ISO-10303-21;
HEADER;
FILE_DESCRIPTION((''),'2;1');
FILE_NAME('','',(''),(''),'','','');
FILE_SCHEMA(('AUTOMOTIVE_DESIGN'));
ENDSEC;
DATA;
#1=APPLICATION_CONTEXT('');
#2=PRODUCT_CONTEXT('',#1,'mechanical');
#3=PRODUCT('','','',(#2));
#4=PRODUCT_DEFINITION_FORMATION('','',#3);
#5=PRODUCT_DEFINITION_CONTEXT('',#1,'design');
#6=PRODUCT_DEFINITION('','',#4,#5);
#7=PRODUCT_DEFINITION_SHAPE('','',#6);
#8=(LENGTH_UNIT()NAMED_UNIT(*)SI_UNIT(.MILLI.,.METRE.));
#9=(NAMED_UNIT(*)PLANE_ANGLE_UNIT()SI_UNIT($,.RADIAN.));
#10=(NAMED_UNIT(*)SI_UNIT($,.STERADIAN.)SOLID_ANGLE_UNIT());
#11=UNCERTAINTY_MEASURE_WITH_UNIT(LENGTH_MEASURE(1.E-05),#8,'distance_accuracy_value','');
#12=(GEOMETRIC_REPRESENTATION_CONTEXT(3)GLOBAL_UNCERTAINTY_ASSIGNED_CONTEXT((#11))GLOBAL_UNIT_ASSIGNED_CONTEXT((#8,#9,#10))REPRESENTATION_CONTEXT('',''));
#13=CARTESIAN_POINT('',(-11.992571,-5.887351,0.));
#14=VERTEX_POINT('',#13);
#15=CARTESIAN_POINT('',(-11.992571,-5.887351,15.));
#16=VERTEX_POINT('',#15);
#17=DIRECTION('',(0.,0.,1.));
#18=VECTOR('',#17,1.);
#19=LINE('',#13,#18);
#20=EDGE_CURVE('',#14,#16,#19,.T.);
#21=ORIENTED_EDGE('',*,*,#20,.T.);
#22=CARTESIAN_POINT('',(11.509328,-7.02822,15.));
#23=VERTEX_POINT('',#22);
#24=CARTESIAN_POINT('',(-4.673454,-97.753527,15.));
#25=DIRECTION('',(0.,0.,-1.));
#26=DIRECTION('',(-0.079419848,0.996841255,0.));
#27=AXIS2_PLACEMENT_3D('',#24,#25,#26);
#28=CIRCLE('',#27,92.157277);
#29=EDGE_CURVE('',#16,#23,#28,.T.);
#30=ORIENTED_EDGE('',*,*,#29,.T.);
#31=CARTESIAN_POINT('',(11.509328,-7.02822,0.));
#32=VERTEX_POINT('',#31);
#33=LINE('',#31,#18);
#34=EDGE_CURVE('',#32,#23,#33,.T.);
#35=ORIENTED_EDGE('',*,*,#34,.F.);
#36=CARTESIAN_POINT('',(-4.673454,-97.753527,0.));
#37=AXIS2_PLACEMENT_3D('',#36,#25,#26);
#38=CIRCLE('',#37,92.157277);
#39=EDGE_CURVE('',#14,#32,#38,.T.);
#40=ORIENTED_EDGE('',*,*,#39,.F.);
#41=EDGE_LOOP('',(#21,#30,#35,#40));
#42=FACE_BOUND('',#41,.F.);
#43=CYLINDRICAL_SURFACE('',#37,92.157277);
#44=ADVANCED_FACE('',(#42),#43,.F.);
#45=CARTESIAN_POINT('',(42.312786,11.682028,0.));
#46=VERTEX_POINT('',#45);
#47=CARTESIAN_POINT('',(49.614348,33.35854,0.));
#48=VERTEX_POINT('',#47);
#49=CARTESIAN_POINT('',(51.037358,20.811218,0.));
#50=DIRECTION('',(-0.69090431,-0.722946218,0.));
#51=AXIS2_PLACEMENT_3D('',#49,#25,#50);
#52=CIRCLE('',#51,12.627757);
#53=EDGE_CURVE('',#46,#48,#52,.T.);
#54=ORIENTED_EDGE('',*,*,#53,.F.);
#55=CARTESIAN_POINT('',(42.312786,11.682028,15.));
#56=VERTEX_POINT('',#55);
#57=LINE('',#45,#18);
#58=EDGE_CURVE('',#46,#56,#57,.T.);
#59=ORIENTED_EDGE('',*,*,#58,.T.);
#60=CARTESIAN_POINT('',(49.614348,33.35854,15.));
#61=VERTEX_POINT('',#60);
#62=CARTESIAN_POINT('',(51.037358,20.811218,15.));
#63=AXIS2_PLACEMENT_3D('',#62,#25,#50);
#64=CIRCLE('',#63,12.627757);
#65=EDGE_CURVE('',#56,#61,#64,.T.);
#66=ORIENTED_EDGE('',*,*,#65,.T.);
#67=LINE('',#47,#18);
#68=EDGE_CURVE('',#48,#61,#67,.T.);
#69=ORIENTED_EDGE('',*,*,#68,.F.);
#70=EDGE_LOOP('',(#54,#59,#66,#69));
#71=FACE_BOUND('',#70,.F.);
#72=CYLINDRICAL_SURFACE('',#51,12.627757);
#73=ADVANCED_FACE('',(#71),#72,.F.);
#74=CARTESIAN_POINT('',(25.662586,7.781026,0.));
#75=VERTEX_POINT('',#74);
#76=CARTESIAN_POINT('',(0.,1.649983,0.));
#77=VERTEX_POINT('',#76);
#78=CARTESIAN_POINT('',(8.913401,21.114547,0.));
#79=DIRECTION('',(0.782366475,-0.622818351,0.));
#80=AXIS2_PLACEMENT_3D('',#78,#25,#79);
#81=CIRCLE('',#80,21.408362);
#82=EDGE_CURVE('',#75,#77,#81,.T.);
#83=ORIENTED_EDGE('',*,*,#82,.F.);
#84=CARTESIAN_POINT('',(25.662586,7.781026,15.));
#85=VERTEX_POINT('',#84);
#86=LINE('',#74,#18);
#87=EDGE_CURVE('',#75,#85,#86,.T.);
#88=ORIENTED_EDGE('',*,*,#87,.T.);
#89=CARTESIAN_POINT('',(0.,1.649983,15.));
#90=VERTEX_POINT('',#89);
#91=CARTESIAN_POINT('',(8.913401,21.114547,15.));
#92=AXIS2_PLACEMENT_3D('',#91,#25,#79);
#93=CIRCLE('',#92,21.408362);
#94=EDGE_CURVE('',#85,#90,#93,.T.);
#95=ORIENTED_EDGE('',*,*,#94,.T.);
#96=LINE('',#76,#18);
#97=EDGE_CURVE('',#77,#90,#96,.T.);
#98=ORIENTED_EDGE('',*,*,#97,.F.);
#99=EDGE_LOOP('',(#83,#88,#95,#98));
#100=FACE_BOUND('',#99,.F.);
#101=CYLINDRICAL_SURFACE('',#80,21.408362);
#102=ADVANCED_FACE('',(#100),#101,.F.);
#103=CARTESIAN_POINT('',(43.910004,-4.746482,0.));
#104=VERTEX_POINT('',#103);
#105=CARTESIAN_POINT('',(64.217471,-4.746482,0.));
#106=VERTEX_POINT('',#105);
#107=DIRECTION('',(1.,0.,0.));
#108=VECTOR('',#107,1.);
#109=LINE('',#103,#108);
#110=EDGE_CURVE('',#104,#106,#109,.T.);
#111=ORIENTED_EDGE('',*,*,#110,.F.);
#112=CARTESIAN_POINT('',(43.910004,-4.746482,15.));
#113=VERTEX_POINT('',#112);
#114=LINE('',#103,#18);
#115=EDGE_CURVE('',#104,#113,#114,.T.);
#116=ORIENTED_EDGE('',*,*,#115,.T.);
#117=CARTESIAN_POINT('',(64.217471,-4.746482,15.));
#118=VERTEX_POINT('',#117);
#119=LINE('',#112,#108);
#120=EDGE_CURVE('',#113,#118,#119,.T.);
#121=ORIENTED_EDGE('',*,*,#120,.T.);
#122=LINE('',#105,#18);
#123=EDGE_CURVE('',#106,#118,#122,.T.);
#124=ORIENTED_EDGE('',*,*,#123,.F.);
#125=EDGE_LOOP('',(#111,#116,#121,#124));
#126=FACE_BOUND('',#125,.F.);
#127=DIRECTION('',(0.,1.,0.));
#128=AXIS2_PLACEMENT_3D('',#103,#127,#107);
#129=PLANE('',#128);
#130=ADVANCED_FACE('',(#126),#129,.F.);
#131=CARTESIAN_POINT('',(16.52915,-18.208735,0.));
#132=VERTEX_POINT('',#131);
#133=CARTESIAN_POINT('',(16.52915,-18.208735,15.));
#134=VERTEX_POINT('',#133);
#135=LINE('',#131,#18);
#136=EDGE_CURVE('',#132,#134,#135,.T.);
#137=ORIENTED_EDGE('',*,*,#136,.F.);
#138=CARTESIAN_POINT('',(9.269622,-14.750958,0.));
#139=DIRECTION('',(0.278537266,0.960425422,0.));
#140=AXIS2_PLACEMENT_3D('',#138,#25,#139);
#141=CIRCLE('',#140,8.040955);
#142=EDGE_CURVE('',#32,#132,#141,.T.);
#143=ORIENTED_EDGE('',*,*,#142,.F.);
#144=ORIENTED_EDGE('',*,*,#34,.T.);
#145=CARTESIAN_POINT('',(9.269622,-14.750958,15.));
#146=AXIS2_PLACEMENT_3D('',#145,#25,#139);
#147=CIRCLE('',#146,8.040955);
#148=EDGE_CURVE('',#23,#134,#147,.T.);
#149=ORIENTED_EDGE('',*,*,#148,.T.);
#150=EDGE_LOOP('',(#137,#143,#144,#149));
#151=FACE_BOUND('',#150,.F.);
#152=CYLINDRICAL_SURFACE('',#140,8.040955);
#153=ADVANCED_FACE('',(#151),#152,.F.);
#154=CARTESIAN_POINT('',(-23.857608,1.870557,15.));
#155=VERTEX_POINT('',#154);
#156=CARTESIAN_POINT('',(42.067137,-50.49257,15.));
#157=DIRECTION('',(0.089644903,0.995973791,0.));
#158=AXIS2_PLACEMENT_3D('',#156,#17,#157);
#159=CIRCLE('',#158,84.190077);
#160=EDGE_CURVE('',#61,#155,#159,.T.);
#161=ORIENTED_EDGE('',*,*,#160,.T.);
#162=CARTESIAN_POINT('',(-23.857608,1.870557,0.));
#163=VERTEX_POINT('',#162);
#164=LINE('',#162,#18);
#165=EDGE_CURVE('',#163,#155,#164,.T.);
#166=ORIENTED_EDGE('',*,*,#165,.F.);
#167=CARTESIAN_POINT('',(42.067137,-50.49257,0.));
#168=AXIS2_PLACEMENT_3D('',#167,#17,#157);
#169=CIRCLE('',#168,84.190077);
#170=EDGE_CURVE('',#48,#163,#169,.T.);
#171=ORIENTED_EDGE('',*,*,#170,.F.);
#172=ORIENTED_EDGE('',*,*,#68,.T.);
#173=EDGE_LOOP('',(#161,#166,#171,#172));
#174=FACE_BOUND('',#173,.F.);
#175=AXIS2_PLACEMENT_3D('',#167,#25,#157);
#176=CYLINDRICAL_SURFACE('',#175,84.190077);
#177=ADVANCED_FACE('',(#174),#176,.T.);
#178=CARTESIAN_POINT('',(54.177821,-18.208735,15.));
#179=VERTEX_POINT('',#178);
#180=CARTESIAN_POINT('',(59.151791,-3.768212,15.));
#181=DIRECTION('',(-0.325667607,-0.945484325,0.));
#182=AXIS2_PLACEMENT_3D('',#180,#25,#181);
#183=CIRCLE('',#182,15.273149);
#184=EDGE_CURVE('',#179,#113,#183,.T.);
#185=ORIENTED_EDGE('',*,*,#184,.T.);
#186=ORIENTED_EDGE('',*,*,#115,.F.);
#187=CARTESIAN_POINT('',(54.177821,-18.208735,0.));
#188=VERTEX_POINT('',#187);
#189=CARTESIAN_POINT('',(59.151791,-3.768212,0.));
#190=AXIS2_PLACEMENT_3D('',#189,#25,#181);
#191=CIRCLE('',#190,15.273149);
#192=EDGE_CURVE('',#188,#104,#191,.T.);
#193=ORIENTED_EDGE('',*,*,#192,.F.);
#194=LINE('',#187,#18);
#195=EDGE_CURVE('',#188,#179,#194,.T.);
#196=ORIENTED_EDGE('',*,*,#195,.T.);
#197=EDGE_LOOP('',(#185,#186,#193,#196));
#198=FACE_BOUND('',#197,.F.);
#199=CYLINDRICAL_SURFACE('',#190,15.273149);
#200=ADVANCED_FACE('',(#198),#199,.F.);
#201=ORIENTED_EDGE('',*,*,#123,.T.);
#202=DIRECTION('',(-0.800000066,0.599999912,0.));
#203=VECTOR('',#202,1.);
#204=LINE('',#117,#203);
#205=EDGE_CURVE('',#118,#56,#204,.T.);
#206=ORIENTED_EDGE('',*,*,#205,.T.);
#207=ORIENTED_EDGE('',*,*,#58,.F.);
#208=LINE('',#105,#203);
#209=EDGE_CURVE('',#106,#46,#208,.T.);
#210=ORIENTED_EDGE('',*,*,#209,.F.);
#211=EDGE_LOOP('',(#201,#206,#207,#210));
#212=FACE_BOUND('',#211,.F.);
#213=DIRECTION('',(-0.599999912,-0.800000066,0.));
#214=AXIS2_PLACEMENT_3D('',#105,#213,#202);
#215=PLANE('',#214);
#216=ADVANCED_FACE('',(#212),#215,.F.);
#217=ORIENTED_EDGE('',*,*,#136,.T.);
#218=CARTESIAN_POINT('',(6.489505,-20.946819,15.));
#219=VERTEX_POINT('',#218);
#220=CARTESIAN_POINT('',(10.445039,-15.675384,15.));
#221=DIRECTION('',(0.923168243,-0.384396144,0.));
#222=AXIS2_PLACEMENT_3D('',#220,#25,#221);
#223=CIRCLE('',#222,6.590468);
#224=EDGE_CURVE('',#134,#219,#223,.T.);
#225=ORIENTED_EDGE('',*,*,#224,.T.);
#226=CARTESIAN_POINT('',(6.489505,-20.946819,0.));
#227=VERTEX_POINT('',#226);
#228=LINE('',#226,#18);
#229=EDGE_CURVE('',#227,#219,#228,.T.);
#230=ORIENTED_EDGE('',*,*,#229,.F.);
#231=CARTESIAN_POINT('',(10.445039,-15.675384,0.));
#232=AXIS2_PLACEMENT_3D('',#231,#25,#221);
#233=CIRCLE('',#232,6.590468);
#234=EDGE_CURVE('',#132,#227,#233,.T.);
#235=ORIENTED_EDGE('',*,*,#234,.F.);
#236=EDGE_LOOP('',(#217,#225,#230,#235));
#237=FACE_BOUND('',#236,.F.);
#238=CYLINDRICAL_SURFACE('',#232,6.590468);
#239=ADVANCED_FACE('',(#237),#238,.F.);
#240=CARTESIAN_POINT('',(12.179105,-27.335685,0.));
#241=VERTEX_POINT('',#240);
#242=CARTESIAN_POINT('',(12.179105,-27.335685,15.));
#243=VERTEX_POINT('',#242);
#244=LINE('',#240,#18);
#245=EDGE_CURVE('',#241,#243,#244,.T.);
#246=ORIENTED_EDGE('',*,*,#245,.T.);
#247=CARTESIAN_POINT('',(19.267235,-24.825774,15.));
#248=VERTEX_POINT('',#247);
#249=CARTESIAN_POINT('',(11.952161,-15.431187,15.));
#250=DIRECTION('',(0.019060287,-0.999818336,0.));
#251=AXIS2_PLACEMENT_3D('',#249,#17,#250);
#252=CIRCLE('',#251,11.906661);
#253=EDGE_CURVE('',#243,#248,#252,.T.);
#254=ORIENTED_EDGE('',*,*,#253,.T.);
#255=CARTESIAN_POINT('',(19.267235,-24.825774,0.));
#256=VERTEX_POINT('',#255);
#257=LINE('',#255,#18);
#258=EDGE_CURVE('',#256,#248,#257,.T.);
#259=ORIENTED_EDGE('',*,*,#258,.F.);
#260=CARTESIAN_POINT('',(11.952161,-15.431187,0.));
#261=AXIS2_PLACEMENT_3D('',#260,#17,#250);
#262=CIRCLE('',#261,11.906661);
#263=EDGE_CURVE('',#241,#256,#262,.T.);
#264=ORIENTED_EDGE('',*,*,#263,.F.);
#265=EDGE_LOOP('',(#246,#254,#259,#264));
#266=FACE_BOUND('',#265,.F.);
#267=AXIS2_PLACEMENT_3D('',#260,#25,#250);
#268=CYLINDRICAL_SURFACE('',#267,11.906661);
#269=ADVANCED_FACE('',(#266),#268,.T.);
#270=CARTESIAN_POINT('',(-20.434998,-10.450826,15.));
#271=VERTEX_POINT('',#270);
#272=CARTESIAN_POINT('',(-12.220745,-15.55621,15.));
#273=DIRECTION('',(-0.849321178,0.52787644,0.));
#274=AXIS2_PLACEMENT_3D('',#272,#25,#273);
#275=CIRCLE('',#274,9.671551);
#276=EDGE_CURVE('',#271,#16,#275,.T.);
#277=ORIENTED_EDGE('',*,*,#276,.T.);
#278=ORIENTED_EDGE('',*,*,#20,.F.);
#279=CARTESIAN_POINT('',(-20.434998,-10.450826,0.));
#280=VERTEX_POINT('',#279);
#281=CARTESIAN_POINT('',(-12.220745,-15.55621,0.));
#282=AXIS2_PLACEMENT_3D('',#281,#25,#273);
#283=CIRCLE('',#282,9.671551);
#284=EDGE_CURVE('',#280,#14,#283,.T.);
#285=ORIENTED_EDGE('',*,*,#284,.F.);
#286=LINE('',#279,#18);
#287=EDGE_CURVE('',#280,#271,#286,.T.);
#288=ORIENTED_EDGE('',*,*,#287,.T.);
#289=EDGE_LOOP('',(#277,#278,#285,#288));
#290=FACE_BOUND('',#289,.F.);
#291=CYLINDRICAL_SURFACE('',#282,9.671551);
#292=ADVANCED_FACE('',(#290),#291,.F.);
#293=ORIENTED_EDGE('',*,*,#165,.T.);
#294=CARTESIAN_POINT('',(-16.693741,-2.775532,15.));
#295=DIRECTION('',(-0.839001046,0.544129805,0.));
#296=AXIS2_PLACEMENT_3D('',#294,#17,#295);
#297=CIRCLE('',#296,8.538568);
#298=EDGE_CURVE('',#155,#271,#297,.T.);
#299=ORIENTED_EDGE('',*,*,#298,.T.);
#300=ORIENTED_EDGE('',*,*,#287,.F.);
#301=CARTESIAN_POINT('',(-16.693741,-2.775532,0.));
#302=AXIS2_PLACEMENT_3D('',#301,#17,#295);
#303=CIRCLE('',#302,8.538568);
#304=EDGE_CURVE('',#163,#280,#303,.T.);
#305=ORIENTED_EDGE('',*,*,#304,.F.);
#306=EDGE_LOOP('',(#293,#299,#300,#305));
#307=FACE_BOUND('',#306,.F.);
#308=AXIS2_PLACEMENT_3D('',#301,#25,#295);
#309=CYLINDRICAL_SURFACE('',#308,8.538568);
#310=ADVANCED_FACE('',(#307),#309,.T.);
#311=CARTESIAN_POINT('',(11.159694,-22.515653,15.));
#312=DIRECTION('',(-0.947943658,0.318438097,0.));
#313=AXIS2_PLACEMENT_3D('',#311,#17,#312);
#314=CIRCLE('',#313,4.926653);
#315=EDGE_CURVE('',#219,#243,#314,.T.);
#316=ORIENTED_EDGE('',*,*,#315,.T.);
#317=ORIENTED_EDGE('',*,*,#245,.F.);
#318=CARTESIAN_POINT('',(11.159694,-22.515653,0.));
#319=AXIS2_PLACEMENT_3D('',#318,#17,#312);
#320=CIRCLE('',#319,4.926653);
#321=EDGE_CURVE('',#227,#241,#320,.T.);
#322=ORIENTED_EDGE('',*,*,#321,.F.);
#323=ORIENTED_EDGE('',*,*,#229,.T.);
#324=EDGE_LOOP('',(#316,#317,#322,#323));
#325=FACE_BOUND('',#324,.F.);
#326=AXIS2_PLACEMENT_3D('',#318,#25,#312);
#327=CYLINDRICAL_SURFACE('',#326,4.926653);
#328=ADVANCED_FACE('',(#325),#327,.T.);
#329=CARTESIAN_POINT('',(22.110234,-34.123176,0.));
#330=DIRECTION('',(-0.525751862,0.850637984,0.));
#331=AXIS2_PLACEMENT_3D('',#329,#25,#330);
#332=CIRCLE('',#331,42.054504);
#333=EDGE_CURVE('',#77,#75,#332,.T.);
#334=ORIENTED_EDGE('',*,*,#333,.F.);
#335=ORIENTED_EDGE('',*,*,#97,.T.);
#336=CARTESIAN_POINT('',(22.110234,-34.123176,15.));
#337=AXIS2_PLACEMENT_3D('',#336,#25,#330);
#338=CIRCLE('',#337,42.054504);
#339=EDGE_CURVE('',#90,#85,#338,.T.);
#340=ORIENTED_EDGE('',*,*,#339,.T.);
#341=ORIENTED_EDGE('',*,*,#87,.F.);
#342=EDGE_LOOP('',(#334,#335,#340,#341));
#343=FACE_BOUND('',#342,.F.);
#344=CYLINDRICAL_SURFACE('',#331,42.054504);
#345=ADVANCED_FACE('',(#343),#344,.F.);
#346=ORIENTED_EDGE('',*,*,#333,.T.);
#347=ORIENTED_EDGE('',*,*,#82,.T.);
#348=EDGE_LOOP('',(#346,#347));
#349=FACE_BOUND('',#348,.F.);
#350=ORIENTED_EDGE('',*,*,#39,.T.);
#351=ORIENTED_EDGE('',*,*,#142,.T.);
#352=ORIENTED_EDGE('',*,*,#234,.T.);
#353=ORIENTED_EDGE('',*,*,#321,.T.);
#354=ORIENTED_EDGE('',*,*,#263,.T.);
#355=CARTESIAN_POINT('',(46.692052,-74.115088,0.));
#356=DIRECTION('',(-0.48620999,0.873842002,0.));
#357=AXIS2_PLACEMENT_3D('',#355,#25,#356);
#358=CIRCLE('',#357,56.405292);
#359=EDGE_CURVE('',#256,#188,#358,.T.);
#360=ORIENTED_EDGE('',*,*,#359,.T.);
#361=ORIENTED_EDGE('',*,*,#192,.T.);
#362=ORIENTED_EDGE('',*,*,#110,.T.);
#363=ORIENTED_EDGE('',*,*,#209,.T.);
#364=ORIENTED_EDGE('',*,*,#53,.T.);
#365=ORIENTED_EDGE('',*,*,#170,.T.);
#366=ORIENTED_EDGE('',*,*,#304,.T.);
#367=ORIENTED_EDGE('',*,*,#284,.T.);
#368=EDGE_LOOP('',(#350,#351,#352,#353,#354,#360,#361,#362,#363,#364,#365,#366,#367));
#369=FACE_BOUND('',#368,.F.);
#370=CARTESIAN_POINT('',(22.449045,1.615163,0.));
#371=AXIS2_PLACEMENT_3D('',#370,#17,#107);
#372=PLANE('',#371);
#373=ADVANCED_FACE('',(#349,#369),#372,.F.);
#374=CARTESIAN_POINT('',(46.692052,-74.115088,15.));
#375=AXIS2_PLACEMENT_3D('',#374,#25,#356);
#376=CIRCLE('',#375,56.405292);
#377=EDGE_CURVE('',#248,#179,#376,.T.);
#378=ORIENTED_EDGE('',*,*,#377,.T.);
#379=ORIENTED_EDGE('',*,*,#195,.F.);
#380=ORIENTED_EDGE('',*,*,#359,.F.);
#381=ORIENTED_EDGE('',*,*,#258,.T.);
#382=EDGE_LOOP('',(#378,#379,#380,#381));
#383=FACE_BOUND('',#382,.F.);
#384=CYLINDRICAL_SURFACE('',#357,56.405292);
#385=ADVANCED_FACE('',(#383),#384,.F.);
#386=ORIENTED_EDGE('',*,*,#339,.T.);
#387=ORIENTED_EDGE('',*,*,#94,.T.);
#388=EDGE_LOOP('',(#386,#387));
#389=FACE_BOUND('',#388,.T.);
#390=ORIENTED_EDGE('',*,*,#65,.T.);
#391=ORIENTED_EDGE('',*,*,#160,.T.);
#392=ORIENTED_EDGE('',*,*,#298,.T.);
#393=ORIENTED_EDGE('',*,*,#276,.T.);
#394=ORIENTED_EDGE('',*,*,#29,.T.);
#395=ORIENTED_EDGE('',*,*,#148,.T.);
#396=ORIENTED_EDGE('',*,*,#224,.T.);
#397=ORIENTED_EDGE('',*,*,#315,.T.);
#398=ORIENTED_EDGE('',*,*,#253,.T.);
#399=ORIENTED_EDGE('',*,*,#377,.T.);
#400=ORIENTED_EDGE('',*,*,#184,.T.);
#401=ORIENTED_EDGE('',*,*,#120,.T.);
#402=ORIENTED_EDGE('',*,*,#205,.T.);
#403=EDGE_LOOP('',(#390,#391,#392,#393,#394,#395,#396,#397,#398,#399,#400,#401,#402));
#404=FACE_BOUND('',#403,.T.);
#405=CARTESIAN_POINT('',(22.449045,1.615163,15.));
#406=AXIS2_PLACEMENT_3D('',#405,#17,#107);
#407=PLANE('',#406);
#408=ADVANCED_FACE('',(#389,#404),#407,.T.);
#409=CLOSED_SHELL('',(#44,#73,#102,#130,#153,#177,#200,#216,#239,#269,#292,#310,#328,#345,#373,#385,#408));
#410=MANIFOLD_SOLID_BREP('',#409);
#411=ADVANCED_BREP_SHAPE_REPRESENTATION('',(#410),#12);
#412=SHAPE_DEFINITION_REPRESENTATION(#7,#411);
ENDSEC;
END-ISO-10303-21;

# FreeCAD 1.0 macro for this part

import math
import FreeCAD as App
import Part
import Sketcher
from FreeCAD import Vector

doc = App.newDocument("Part")
body = doc.addObject("PartDesign::Body", "Body")

# Sketch on XY plane
sketch1 = body.newObject("Sketcher::SketchObject", "Sketch")
sketch1.AttachmentSupport = (doc.getObject("XY_Plane"), [""])
sketch1.MapMode = "FlatFace"
sketch1.addGeometry([
    Part.ArcOfCircle(Part.Circle(Vector(42.1, -50.5, 0), Vector(0, 0, 1), 84.2), math.radians(85), math.radians(142)),  # 0
    Part.ArcOfCircle(Part.Circle(Vector(-16.7, -2.8, 0), Vector(0, 0, 1), 8.5), math.radians(147), math.radians(244)),  # 1
    Part.ArcOfCircle(Part.Circle(Vector(-12.2, -15.6, 0), Vector(0, 0, 1), 9.7), math.radians(89), math.radians(148)),  # 2
    Part.ArcOfCircle(Part.Circle(Vector(-4.7, -97.8, 0), Vector(0, 0, 1), 92.2), math.radians(79.89), math.radians(94.56)),  # 3
    Part.ArcOfCircle(Part.Circle(Vector(9.3, -14.8, 0), Vector(0, 0, 1), 8), math.radians(-25), math.radians(74)),  # 4
    Part.ArcOfCircle(Part.Circle(Vector(10.4, -15.7, 0), Vector(0, 0, 1), 6.6), math.radians(-127), math.radians(-23)),  # 5
    Part.ArcOfCircle(Part.Circle(Vector(11.2, -22.5, 0), Vector(0, 0, 1), 4.9), math.radians(161), math.radians(282)),  # 6
    Part.ArcOfCircle(Part.Circle(Vector(12, -15.4, 0), Vector(0, 0, 1), 11.9), math.radians(-89), math.radians(-52)),  # 7
    Part.ArcOfCircle(Part.Circle(Vector(46.7, -74.1, 0), Vector(0, 0, 1), 56.4), math.radians(82), math.radians(119)),  # 8
    Part.ArcOfCircle(Part.Circle(Vector(59.2, -3.8, 0), Vector(0, 0, 1), 15.3), math.radians(-176), math.radians(-109)),  # 9
    Part.LineSegment(Vector(43.9, -4.7, 0), Vector(64.2, -4.7, 0)),  # 10
    Part.LineSegment(Vector(64.2, -4.7, 0), Vector(42.3, 11.7, 0)),  # 11
    Part.ArcOfCircle(Part.Circle(Vector(51, 20.8, 0), Vector(0, 0, 1), 12.6), math.radians(96), math.radians(226)),  # 12
    Part.ArcOfCircle(Part.Circle(Vector(8.9, 21.1, 0), Vector(0, 0, 1), 21.4), math.radians(-115), math.radians(-39)),  # 13
    Part.ArcOfCircle(Part.Circle(Vector(22.1, -34.1, 0), Vector(0, 0, 1), 42.1), math.radians(85), math.radians(122)),  # 14
], False)
sketch1.addConstraint([
    Sketcher.Constraint("Coincident", 0, 2, 1, 1),
    Sketcher.Constraint("Coincident", 1, 2, 2, 2),
    Sketcher.Constraint("Coincident", 2, 1, 3, 2),
    Sketcher.Constraint("Coincident", 3, 1, 4, 2),
    Sketcher.Constraint("Coincident", 4, 1, 5, 2),
    Sketcher.Constraint("Coincident", 5, 1, 6, 1),
    Sketcher.Constraint("Coincident", 6, 2, 7, 1),
    Sketcher.Constraint("Coincident", 7, 2, 8, 2),
    Sketcher.Constraint("Coincident", 8, 1, 9, 2),
    Sketcher.Constraint("Coincident", 9, 1, 10, 1),
    Sketcher.Constraint("Coincident", 10, 2, 11, 1),
    Sketcher.Constraint("Coincident", 11, 2, 12, 2),
    Sketcher.Constraint("Coincident", 12, 1, 0, 1),
    Sketcher.Constraint("Coincident", 13, 1, 14, 2),
    Sketcher.Constraint("Coincident", 14, 1, 13, 2),
    Sketcher.Constraint("Horizontal", 10),
    Sketcher.Constraint("PointOnObject", 13, 1, -2),
    Sketcher.Constraint("Horizontal", 4, 1, 8, 1),
    Sketcher.Constraint("Radius", 2, 9.671551),
    Sketcher.Constraint("Radius", 5, 6.590468),
    Sketcher.Constraint("Radius", 7, 11.906661),
    Sketcher.Constraint("Radius", 9, 15.273149),
    Sketcher.Constraint("DistanceX", 1, 2, -1, 1, 20.434998),
    Sketcher.Constraint("Radius", 0, 84.190077),
    Sketcher.Constraint("Radius", 1, 8.538568),
    Sketcher.Constraint("Radius", 3, 92.157277),
    Sketcher.Constraint("Radius", 4, 8.040955),
    Sketcher.Constraint("Radius", 6, 4.926653),
    Sketcher.Constraint("Radius", 8, 56.405292),
    Sketcher.Constraint("Radius", 12, 12.627757),
    Sketcher.Constraint("Radius", 13, 21.408362),
    Sketcher.Constraint("Radius", 14, 42.054504),
    Sketcher.Constraint("DistanceX", 7, 2, 14, 3, 2.842999),
    Sketcher.Constraint("DistanceX", -1, 1, 13, 3, 8.913401),
    Sketcher.Constraint("DistanceX", 1, 3, 7, 3, 28.645901),
    Sketcher.Constraint("DistanceY", 8, 3, 7, 3, 58.683901),
    Sketcher.Constraint("DistanceY", 5, 3, 12, 3, 36.486602),
    Sketcher.Constraint("DistanceX", 2, 1, 3, 1, 23.501899),
    Sketcher.Constraint("DistanceX", 5, 1, 6, 2, 5.6896),
    Sketcher.Constraint("DistanceY", 6, 2, 5, 3, 11.660301),
    Sketcher.Constraint("DistanceY", 6, 2, 7, 3, 11.904498),
    Sketcher.Constraint("DistanceY", 14, 3, 7, 2, 9.297402),
    Sketcher.Constraint("DistanceY", 9, 1, 12, 3, 25.5577),
    Sketcher.Constraint("DistanceX", 14, 1, 11, 2, 16.6502),
    Sketcher.Constraint("DistanceX", 10, 1, 10, 2, 20.307467),
    Sketcher.Constraint("DistanceY", 0, 3, -1, 1, 50.49257),
    Sketcher.Constraint("DistanceX", 1, 3, -1, 1, 16.693741),
    Sketcher.Constraint("DistanceY", 2, 3, -1, 1, 15.55621),
    Sketcher.Constraint("DistanceY", 4, 3, -1, 1, 14.750958),
    Sketcher.Constraint("DistanceX", -1, 1, 5, 3, 10.445039),
    Sketcher.Constraint("DistanceX", -1, 1, 8, 3, 46.692052),
    Sketcher.Constraint("DistanceX", -1, 1, 9, 3, 59.151791),
    Sketcher.Constraint("DistanceX", -1, 1, 12, 3, 51.037358),
    Sketcher.Constraint("DistanceX", 0, 2, -1, 1, 23.857608),
    Sketcher.Constraint("DistanceX", 2, 1, -1, 1, 11.992571),
    Sketcher.Constraint("DistanceY", 2, 1, -1, 1, 5.887351),
    Sketcher.Constraint("DistanceY", 3, 1, -1, 1, 7.02822),
    Sketcher.Constraint("DistanceX", -1, 1, 4, 1, 16.52915),
])
pad1 = body.newObject("PartDesign::Pad", "Pad")
pad1.Profile = sketch1
pad1.Length = 15

doc.recompute()
